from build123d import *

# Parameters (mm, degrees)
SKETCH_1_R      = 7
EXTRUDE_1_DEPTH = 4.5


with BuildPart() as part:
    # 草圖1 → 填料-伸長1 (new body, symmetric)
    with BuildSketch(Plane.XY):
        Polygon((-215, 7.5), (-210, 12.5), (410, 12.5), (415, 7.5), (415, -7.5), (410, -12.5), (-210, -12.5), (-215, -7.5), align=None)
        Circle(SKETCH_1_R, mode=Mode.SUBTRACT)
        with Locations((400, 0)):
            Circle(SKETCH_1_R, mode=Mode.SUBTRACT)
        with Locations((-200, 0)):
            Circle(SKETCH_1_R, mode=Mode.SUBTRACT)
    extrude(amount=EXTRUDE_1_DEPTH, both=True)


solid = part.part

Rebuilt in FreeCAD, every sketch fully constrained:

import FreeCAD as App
import Part
import Sketcher

doc = App.newDocument("Part")
params = doc.addObject("Spreadsheet::Sheet", "Params")
for row, (alias, value) in enumerate([
    ("sketch1_diameter", "14 mm"),
    ("sketch1_width", "620 mm"),
    ("sketch1_height", "15 mm"),
    ("pad1_length", "9 mm"),
], start=1):
    params.set(f"A{row}", alias)
    params.set(f"B{row}", "=" + value)
    params.setAlias(f"B{row}", alias)

body = doc.addObject("PartDesign::Body", "Body")

sketch1 = doc.addObject("Sketcher::SketchObject", "Sketch")
body.addObject(sketch1)
sketch1.AttachmentSupport = (doc.XY_Plane, [""])
sketch1.MapMode = "FlatFace"
sketch1.addGeometry([
    Part.LineSegment(App.Vector(-210, 12, 0), App.Vector(-215, 8, 0)),
    Part.LineSegment(App.Vector(-215, 8, 0), App.Vector(-215, -8, 0)),
    Part.LineSegment(App.Vector(-215, -8, 0), App.Vector(-210, -12, 0)),
    Part.LineSegment(App.Vector(-210, -12, 0), App.Vector(410, -12, 0)),
    Part.LineSegment(App.Vector(410, -12, 0), App.Vector(415, -8, 0)),
    Part.LineSegment(App.Vector(415, -8, 0), App.Vector(415, 8, 0)),
    Part.LineSegment(App.Vector(415, 8, 0), App.Vector(410, 12, 0)),
    Part.LineSegment(App.Vector(410, 12, 0), App.Vector(-210, 12, 0)),
    Part.Circle(App.Vector(400, 0, 0), App.Vector(0, 0, 1), 7),
    Part.Circle(App.Vector(0, 0, 0), App.Vector(0, 0, 1), 7),
    Part.Circle(App.Vector(-200, 0, 0), App.Vector(0, 0, 1), 7),
], False)
sketch1.addConstraint([
    Sketcher.Constraint("Coincident", 0, 2, 1, 1),
    Sketcher.Constraint("Coincident", 1, 2, 2, 1),
    Sketcher.Constraint("Coincident", 2, 2, 3, 1),
    Sketcher.Constraint("Coincident", 3, 2, 4, 1),
    Sketcher.Constraint("Coincident", 4, 2, 5, 1),
    Sketcher.Constraint("Coincident", 5, 2, 6, 1),
    Sketcher.Constraint("Coincident", 6, 2, 7, 1),
    Sketcher.Constraint("Coincident", 7, 2, 0, 1),
    Sketcher.Constraint("Vertical", 1),
    Sketcher.Constraint("Horizontal", 3),
    Sketcher.Constraint("Vertical", 5),
    Sketcher.Constraint("Horizontal", 7),
    Sketcher.Constraint("Coincident", 9, 3, -1, 1),
    Sketcher.Constraint("Equal", 8, 9),
    Sketcher.Constraint("Equal", 9, 10),
    Sketcher.Constraint("Symmetric", 3, 2, 6, 2, -1),
    Sketcher.Constraint("PointOnObject", 8, 3, -1),
    Sketcher.Constraint("PointOnObject", 10, 3, -1),
    Sketcher.Constraint("Perpendicular", 0, 2),
    Sketcher.Constraint("Perpendicular", 2, 4),
    Sketcher.Constraint("Perpendicular", 4, 6),
    Sketcher.Constraint("Horizontal", 1, 2, 4, 2),
    Sketcher.Constraint("Horizontal", 0, 2, 5, 2),
    Sketcher.Constraint("Vertical", 2, 2, 7, 2),
    Sketcher.Constraint("Diameter", 8, 14.0),
    Sketcher.Constraint("DistanceX", 3, 1, 3, 2, 620.0),
    Sketcher.Constraint("DistanceY", 1, 2, 1, 1, 15.0),
    Sketcher.Constraint("DistanceX", -1, 1, 8, 3, 400.0),
    Sketcher.Constraint("DistanceX", 10, 3, -1, 1, 200.0),
    Sketcher.Constraint("DistanceX", 0, 2, -1, 1, 215.0),
    Sketcher.Constraint("DistanceX", 2, 2, -1, 1, 210.0),
])
sketch1.setExpression("Constraints[24]", "Params.sketch1_diameter")
sketch1.setExpression("Constraints[25]", "Params.sketch1_width")
sketch1.setExpression("Constraints[26]", "Params.sketch1_height")
pad1 = doc.addObject("PartDesign::Pad", "Pad")
body.addObject(pad1)
pad1.Profile = sketch1
pad1.setExpression("Length", "Params.pad1_length")
pad1.Midplane = True

doc.recompute()
